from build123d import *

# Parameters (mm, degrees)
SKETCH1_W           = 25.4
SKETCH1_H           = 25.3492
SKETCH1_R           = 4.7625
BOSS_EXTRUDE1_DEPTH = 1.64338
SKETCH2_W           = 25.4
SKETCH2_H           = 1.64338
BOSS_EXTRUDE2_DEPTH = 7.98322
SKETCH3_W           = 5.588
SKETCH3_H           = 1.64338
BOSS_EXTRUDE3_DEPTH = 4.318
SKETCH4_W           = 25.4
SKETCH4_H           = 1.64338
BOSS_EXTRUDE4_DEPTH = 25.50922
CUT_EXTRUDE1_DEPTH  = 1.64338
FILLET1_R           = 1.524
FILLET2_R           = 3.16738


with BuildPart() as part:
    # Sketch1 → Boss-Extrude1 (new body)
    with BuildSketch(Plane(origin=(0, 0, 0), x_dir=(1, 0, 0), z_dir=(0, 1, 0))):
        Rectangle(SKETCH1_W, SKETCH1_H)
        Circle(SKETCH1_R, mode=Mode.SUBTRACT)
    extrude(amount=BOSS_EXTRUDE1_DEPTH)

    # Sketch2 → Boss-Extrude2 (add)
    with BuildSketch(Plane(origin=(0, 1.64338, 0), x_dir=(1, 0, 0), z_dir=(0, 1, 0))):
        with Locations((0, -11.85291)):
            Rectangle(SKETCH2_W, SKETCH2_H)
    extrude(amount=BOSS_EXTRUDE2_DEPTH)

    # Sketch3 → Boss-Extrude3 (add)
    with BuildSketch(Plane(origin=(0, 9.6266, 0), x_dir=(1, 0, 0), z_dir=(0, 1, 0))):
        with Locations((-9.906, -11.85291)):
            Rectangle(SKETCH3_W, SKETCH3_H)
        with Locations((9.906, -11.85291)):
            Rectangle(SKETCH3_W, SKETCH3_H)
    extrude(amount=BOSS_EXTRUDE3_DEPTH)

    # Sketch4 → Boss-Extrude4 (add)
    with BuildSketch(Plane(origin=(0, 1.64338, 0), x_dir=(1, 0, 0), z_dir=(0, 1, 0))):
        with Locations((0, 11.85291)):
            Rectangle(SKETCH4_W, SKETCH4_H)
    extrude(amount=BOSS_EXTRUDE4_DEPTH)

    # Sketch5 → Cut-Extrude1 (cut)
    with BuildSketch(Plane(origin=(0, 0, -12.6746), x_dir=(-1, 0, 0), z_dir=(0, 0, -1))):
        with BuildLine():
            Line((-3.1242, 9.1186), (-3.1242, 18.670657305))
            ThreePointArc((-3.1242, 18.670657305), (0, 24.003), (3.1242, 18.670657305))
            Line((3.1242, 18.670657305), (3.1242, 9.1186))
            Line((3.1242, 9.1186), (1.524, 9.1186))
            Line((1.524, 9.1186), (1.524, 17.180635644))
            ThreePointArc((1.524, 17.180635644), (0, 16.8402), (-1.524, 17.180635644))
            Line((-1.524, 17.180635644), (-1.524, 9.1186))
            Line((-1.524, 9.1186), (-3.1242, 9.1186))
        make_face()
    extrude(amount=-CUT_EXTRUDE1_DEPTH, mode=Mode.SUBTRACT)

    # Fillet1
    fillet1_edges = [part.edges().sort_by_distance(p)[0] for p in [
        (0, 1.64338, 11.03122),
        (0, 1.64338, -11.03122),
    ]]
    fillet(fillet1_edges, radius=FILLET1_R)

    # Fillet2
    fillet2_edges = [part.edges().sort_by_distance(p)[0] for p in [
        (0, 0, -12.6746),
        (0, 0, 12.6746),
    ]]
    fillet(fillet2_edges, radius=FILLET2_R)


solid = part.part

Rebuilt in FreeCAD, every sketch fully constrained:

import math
import FreeCAD as App
import Part
import Sketcher
Q = App.Units.Quantity


def edges_at(feature, points):
    """Names of the edges that pass closest to the given points."""
    edges = feature.Shape.Edges
    near = lambda p: min(range(len(edges)), key=lambda i: edges[i].distToShape(Part.Vertex(*p))[0])
    return sorted({f"Edge{near(p) + 1}" for p in points})


def add_polygon(sketch, points):
    """Adds a closed chain of lines whose ends are joined by coincident constraints."""
    first, n = sketch.GeometryCount, len(points)
    for a, b in zip(points, points[1:] + points[:1]):
        sketch.addGeometry(Part.LineSegment(App.Vector(*a, 0), App.Vector(*b, 0)), False)
    for i in range(n):
        sketch.addConstraint(Sketcher.Constraint("Coincident", first + i, 2, first + (i + 1) % n, 1))

doc = App.newDocument("Part")
body = doc.addObject("PartDesign::Body", "Body")

sketch1 = body.newObject("Sketcher::SketchObject", "Sketch")
sketch1.AttachmentSupport = (doc.getObject("XZ_Plane"), [""])
sketch1.MapMode = "FlatFace"
add_polygon(sketch1, [(-12.7, -12.6746), (-12.7, 12.6746), (12.7, 12.6746), (12.7, -12.6746)])
sketch1.addGeometry(Part.Circle(App.Vector(0, 0, 0), App.Vector(0, 0, 1), 4.7625), False)
sketch1.addConstraint([
    Sketcher.Constraint("Vertical", 0),
    Sketcher.Constraint("Horizontal", 1),
    Sketcher.Constraint("Vertical", 2),
    Sketcher.Constraint("Horizontal", 3),
    Sketcher.Constraint("Coincident", 4, 3, -1, 1),
    Sketcher.Constraint("Symmetric", 0, 2, 2, 2, -1, 1),
    Sketcher.Constraint("DistanceX", 1, 1, 1, 2, Q("1 in")),
    Sketcher.Constraint("Diameter", 4, Q("0.375 in")),
    Sketcher.Constraint("DistanceY", 0, 1, 0, 2, Q("0.998 in")),
])
pad1 = body.newObject("PartDesign::Pad", "Pad")
pad1.Profile = sketch1
pad1.Length = Q("0.0647 in")
pad1.Reversed = True

sketch2 = body.newObject("Sketcher::SketchObject", "Sketch001")
sketch2.AttachmentSupport = (doc.getObject("XZ_Plane"), [""])
sketch2.MapMode = "FlatFace"
sketch2.AttachmentOffset = App.Placement(App.Vector(0, 0, -0.0647 * 25.4), App.Rotation())
add_polygon(sketch2, [(-12.7, 11.03122), (-12.7, 12.6746), (12.7, 12.6746), (12.7, 11.03122)])
sketch2.addConstraint([
    Sketcher.Constraint("Vertical", 0),
    Sketcher.Constraint("Horizontal", 1),
    Sketcher.Constraint("Vertical", 2),
    Sketcher.Constraint("Horizontal", 3),
    Sketcher.Constraint("DistanceX", 1, 1, 1, 2, Q("1 in")),
    Sketcher.Constraint("DistanceX", 0, 2, -1, 1, Q("0.5 in")),
    Sketcher.Constraint("DistanceY", 0, 1, 0, 2, Q("0.0647 in")),
    Sketcher.Constraint("DistanceY", -1, 1, 0, 2, Q("0.499 in")),
])
pad2 = body.newObject("PartDesign::Pad", "Pad001")
pad2.Profile = sketch2
pad2.Length = Q("0.3143 in")
pad2.Reversed = True

sketch3 = body.newObject("Sketcher::SketchObject", "Sketch002")
sketch3.AttachmentSupport = (doc.getObject("XZ_Plane"), [""])
sketch3.MapMode = "FlatFace"
sketch3.AttachmentOffset = App.Placement(App.Vector(0, 0, -0.379 * 25.4), App.Rotation())
add_polygon(sketch3, [(-12.7, 11.03122), (-12.7, 12.6746), (-7.112, 12.6746), (-7.112, 11.03122)])
add_polygon(sketch3, [(7.112, 11.03122), (7.112, 12.6746), (12.7, 12.6746), (12.7, 11.03122)])
sketch3.addConstraint([
    Sketcher.Constraint("Vertical", 0),
    Sketcher.Constraint("Horizontal", 1),
    Sketcher.Constraint("Vertical", 2),
    Sketcher.Constraint("Horizontal", 3),
    Sketcher.Constraint("Vertical", 4),
    Sketcher.Constraint("Horizontal", 5),
    Sketcher.Constraint("Vertical", 6),
    Sketcher.Constraint("Horizontal", 7),
    Sketcher.Constraint("Symmetric", 1, 2, 4, 2, -2),
    Sketcher.Constraint("Symmetric", 3, 2, 6, 2, -2),
    Sketcher.Constraint("DistanceX", 0, 2, 5, 2, Q("1 in")),
    Sketcher.Constraint("DistanceX", 1, 1, 1, 2, Q("0.22 in")),
    Sketcher.Constraint("DistanceY", 0, 1, 0, 2, Q("0.0647 in")),
    Sketcher.Constraint("DistanceY", -1, 1, 0, 2, Q("0.499 in")),
])
pad3 = body.newObject("PartDesign::Pad", "Pad002")
pad3.Profile = sketch3
pad3.Length = Q("0.17 in")
pad3.Reversed = True

sketch4 = body.newObject("Sketcher::SketchObject", "Sketch003")
sketch4.AttachmentSupport = (doc.getObject("XZ_Plane"), [""])
sketch4.MapMode = "FlatFace"
sketch4.AttachmentOffset = App.Placement(App.Vector(0, 0, -0.0647 * 25.4), App.Rotation())
add_polygon(sketch4, [(-12.7, -12.6746), (-12.7, -11.03122), (12.7, -11.03122), (12.7, -12.6746)])
sketch4.addConstraint([
    Sketcher.Constraint("Vertical", 0),
    Sketcher.Constraint("Horizontal", 1),
    Sketcher.Constraint("Vertical", 2),
    Sketcher.Constraint("Horizontal", 3),
    Sketcher.Constraint("DistanceX", 1, 1, 1, 2, Q("1 in")),
    Sketcher.Constraint("DistanceX", 0, 2, -1, 1, Q("0.5 in")),
    Sketcher.Constraint("DistanceY", 0, 1, 0, 2, Q("0.0647 in")),
    Sketcher.Constraint("DistanceY", 2, 2, -1, 1, Q("0.499 in")),
])
pad4 = body.newObject("PartDesign::Pad", "Pad003")
pad4.Profile = sketch4
pad4.Length = Q("1.0043 in")
pad4.Reversed = True

sketch5 = body.newObject("Sketcher::SketchObject", "Sketch004")
sketch5.AttachmentSupport = (doc.getObject("XY_Plane"), [""])
sketch5.MapMode = "FlatFace"
sketch5.AttachmentOffset = App.Placement(App.Vector(0, 0, -0.499 * 25.4), App.Rotation())
sketch5.addGeometry([
    Part.LineSegment(App.Vector(3.1242, 18.670657, 0), App.Vector(3.1242, 9.1186, 0)),
    Part.LineSegment(App.Vector(3.1242, 9.1186, 0), App.Vector(1.524, 9.1186, 0)),
    Part.LineSegment(App.Vector(1.524, 9.1186, 0), App.Vector(1.524, 17.180636, 0)),
    Part.ArcOfCircle(Part.Circle(App.Vector(0, 20.4216, 0), App.Vector(0, 0, 1), 3.5814), math.radians(-115.184337), math.radians(-64.815663)),
    Part.LineSegment(App.Vector(-1.524, 17.180636, 0), App.Vector(-1.524, 9.1186, 0)),
    Part.LineSegment(App.Vector(-1.524, 9.1186, 0), App.Vector(-3.1242, 9.1186, 0)),
    Part.LineSegment(App.Vector(-3.1242, 9.1186, 0), App.Vector(-3.1242, 18.670657, 0)),
    Part.ArcOfCircle(Part.Circle(App.Vector(0, 20.4216, 0), App.Vector(0, 0, 1), 3.5814), math.radians(-29.268238), math.radians(209.268238)),
], False)
sketch5.addConstraint([
    Sketcher.Constraint("Coincident", 0, 2, 1, 1),
    Sketcher.Constraint("Coincident", 1, 2, 2, 1),
    Sketcher.Constraint("Coincident", 2, 2, 3, 2),
    Sketcher.Constraint("Coincident", 3, 1, 4, 1),
    Sketcher.Constraint("Coincident", 4, 2, 5, 1),
    Sketcher.Constraint("Coincident", 5, 2, 6, 1),
    Sketcher.Constraint("Coincident", 6, 2, 7, 2),
    Sketcher.Constraint("Coincident", 7, 1, 0, 1),
    Sketcher.Constraint("Vertical", 0),
    Sketcher.Constraint("Horizontal", 1),
    Sketcher.Constraint("Vertical", 2),
    Sketcher.Constraint("Vertical", 4),
    Sketcher.Constraint("Horizontal", 5),
    Sketcher.Constraint("Vertical", 6),
    Sketcher.Constraint("Coincident", 7, 3, 3, 3),
    Sketcher.Constraint("Equal", 3, 7),
    Sketcher.Constraint("Symmetric", 2, 2, 3, 1, -2),
    Sketcher.Constraint("Symmetric", 0, 2, 5, 2, -2),
    Sketcher.Constraint("Radius", 3, Q("0.141 in")),
    Sketcher.Constraint("DistanceX", 1, 2, 1, 1, Q("0.063 in")),
    Sketcher.Constraint("DistanceX", -1, 1, 1, 2, Q("0.06 in")),
    Sketcher.Constraint("DistanceY", -1, 1, 3, 3, Q("0.804 in")),
    Sketcher.Constraint("DistanceY", -1, 1, 0, 2, Q("0.359 in")),
])
pocket1 = body.newObject("PartDesign::Pocket", "Pocket")
pocket1.Profile = sketch5
pocket1.Length = Q("0.0647 in")
pocket1.Reversed = True
doc.recompute()

fillet = body.newObject("PartDesign::Fillet", "Fillet")
fillet.Base = (pocket1, edges_at(pocket1, [(0, 1.643, 11.031), (0, 1.643, -11.031)]))
fillet.Radius = Q("0.06 in")
doc.recompute()

fillet2 = body.newObject("PartDesign::Fillet", "Fillet001")
fillet2.Base = (fillet, edges_at(fillet, [(0, 0, -12.675), (0, 0, 12.675)]))
fillet2.Radius = Q("0.1247 in")

doc.recompute()
